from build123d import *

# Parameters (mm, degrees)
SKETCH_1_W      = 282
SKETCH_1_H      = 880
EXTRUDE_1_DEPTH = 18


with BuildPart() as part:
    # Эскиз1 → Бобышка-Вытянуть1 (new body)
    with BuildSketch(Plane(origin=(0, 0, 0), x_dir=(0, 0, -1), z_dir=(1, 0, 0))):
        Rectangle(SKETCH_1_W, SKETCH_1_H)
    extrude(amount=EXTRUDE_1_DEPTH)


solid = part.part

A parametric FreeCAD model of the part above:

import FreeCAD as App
import Part
import Sketcher
from FreeCAD import Vector


def add_polygon(sketch, points):
    """Adds a closed chain of lines whose ends are joined by coincident constraints."""
    first, n = sketch.GeometryCount, len(points)
    for a, b in zip(points, points[1:] + points[:1]):
        sketch.addGeometry(Part.LineSegment(App.Vector(*a, 0), App.Vector(*b, 0)), False)
    for i in range(n):
        sketch.addConstraint(Sketcher.Constraint("Coincident", first + i, 2, first + (i + 1) % n, 1))

doc = App.newDocument("Part")
body = doc.addObject("PartDesign::Body", "Body")

sketch1 = body.newObject("Sketcher::SketchObject", "Sketch")
sketch1.AttachmentSupport = (doc.getObject("YZ_Plane"), [""])
sketch1.MapMode = "FlatFace"
add_polygon(sketch1, [(440, 141), (-440, 141), (-440, -141), (440, -141)])
sketch1.addConstraint(Sketcher.Constraint("Horizontal", 0))
sketch1.addConstraint(Sketcher.Constraint("Vertical", 1))
sketch1.addConstraint(Sketcher.Constraint("Horizontal", 2))
sketch1.addConstraint(Sketcher.Constraint("Vertical", 3))
sketch1.addConstraint(Sketcher.Constraint("Symmetric", 0, 2, 2, 2, -1, 1))
sketch1.addConstraint(Sketcher.Constraint("DistanceX", 0, 2, 0, 1, 880.0))
sketch1.addConstraint(Sketcher.Constraint("DistanceY", 1, 2, 1, 1, 282.0))
pad1 = body.newObject("PartDesign::Pad", "Pad")
pad1.Profile = sketch1
pad1.Length = 18

doc.recompute()
